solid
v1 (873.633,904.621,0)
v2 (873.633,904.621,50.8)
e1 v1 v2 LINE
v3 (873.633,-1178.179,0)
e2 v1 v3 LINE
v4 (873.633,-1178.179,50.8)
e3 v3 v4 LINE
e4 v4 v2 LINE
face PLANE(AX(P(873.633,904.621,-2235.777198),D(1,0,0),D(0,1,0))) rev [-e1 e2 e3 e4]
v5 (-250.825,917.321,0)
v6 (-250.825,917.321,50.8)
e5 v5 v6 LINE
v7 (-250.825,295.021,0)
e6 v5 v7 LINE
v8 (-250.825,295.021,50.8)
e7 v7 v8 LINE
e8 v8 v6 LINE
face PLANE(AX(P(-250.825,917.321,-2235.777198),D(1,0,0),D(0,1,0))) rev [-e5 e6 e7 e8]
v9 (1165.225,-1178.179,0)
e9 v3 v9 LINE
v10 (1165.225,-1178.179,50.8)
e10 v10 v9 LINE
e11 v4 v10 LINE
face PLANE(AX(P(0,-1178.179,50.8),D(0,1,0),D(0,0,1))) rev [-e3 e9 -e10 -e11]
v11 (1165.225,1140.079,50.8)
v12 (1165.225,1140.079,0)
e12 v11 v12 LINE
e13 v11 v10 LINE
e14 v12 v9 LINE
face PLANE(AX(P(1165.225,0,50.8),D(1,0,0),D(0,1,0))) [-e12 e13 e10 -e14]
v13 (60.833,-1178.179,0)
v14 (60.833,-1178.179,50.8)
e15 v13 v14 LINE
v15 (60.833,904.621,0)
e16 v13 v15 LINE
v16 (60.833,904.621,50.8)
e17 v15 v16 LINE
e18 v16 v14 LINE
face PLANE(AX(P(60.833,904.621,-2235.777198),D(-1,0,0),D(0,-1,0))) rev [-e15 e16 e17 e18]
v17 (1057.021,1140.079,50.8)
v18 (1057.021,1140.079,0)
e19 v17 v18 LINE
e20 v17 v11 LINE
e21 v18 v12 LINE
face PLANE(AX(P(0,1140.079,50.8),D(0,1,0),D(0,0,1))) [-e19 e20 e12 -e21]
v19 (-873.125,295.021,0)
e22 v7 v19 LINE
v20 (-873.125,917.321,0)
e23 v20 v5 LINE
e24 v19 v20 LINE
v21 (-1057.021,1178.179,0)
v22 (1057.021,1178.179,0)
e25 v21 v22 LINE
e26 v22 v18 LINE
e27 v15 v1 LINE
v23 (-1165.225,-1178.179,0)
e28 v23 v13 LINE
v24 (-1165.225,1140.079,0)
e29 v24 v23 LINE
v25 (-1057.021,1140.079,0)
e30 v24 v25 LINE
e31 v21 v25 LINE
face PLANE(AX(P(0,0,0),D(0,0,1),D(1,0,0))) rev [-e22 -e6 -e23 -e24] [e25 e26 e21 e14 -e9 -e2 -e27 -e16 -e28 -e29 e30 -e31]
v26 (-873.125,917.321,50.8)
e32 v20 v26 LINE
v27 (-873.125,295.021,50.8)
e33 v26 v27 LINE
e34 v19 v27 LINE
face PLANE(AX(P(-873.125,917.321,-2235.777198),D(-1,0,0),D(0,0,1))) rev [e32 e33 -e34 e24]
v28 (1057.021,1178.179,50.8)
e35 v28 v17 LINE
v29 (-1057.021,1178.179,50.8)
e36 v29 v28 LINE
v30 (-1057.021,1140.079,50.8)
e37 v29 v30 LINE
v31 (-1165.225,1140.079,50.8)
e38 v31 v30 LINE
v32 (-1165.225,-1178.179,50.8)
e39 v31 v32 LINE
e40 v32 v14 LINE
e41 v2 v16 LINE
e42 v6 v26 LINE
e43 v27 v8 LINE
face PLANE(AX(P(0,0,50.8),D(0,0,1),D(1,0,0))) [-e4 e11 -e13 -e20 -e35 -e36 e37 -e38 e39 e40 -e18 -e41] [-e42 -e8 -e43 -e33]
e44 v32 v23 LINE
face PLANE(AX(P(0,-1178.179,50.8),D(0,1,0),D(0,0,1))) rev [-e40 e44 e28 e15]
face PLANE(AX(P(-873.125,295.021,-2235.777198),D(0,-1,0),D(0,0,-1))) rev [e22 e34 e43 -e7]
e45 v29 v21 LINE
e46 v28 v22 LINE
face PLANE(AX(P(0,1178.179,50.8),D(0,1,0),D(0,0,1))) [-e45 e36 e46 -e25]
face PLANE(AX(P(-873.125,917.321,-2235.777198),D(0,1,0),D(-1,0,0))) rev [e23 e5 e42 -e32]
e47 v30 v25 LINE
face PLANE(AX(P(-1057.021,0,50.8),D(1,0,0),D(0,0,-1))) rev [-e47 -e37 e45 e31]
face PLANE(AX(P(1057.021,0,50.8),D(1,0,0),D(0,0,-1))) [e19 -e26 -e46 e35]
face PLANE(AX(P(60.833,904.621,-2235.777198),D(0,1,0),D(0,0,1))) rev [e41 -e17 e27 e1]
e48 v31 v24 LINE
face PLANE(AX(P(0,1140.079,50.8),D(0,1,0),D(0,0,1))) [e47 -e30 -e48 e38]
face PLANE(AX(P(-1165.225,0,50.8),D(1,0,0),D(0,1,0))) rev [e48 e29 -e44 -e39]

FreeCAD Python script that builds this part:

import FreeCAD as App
import Part
import Sketcher

V = App.Vector
Q = App.Units.Quantity


def add_polygon(sketch, points):
    """Adds a closed chain of lines whose ends are joined by coincident constraints."""
    first, n = sketch.GeometryCount, len(points)
    for a, b in zip(points, points[1:] + points[:1]):
        sketch.addGeometry(Part.LineSegment(App.Vector(*a, 0), App.Vector(*b, 0)), False)
    for i in range(n):
        sketch.addConstraint(Sketcher.Constraint("Coincident", first + i, 2, first + (i + 1) % n, 1))

doc = App.newDocument("Part")
params = doc.addObject("Spreadsheet::Sheet", "Params")
for row, (alias, value) in enumerate([
    ("sketch1_height", "1.5 in"),
    ("sketch1_width", "83.23 in"),
    ("sketch1_width2", "4.26 in"),
    ("sketch1_height2", "91.27 in"),
    ("pad1_length", "2 in"),
    ("sketch2_width", "32 in"),
    ("sketch2_height", "82 in"),
    ("sketch2_width2", "24.5 in"),
    ("pocket1_length", "2 in"),
], start=1):
    params.set(f"A{row}", alias)
    params.set(f"B{row}", "=" + value)
    params.setAlias(f"B{row}", alias)

body = doc.addObject("PartDesign::Body", "Body")

sketch1 = doc.addObject("Sketcher::SketchObject", "Sketch")
body.addObject(sketch1)
sketch1.AttachmentSupport = (doc.XY_Plane, [""])
sketch1.MapMode = "FlatFace"
add_polygon(sketch1, [(1057.021, 1178.179), (-1057.021, 1178.179), (-1057.021, 1140.079), (-1165.225, 1140.079), (-1165.225, -1178.179), (1165.225, -1178.179), (1165.225, 1140.079), (1057.021, 1140.079)])
sketch1.addConstraint(Sketcher.Constraint("Horizontal", 0))
sketch1.addConstraint(Sketcher.Constraint("Vertical", 1))
sketch1.addConstraint(Sketcher.Constraint("Horizontal", 2))
sketch1.addConstraint(Sketcher.Constraint("Vertical", 3))
sketch1.addConstraint(Sketcher.Constraint("Horizontal", 4))
sketch1.addConstraint(Sketcher.Constraint("Vertical", 5))
sketch1.addConstraint(Sketcher.Constraint("Horizontal", 6))
sketch1.addConstraint(Sketcher.Constraint("Vertical", 7))
sketch1.addConstraint(Sketcher.Constraint("Symmetric", 2, 2, 5, 2, -2))
sketch1.addConstraint(Sketcher.Constraint("Equal", 2, 6))
sketch1.addConstraint(Sketcher.Constraint("DistanceY", 1, 2, 1, 1, Q("1.5 in")))
sketch1.addConstraint(Sketcher.Constraint("DistanceX", 0, 2, 0, 1, Q("83.23 in")))
sketch1.addConstraint(Sketcher.Constraint("DistanceX", 2, 2, 2, 1, Q("4.26 in")))
sketch1.addConstraint(Sketcher.Constraint("DistanceY", 3, 2, 3, 1, Q("91.27 in")))
sketch1.addConstraint(Sketcher.Constraint("DistanceY", -1, 1, 0, 2, Q("46.385 in")))
sketch1.setExpression("Constraints[18]", "Params.sketch1_height")
sketch1.setExpression("Constraints[19]", "Params.sketch1_width")
sketch1.setExpression("Constraints[20]", "Params.sketch1_width2")
sketch1.setExpression("Constraints[21]", "Params.sketch1_height2")
pad1 = doc.addObject("PartDesign::Pad", "Pad")
body.addObject(pad1)
pad1.Profile = sketch1
pad1.setExpression("Length", "Params.pad1_length")

sketch2 = doc.addObject("Sketcher::SketchObject", "Sketch001")
body.addObject(sketch2)
sketch2.AttachmentSupport = (doc.XY_Plane, [""])
sketch2.MapMode = "FlatFace"
sketch2.AttachmentOffset = App.Placement(V(0, 0, 2 * 25.4), App.Rotation())
add_polygon(sketch2, [(-873.125, 917.321), (-873.125, 295.021), (-250.825, 295.021), (-250.825, 917.321)])
add_polygon(sketch2, [(60.833, 904.621), (60.833, -1178.179), (873.633, -1178.179), (873.633, 904.621)])
sketch2.addConstraint(Sketcher.Constraint("Vertical", 0))
sketch2.addConstraint(Sketcher.Constraint("Horizontal", 1))
sketch2.addConstraint(Sketcher.Constraint("Vertical", 2))
sketch2.addConstraint(Sketcher.Constraint("Horizontal", 3))
sketch2.addConstraint(Sketcher.Constraint("Vertical", 4))
sketch2.addConstraint(Sketcher.Constraint("Horizontal", 5))
sketch2.addConstraint(Sketcher.Constraint("Vertical", 6))
sketch2.addConstraint(Sketcher.Constraint("Horizontal", 7))
sketch2.addConstraint(Sketcher.Constraint("Equal", 3, 0))
sketch2.addConstraint(Sketcher.Constraint("DistanceX", 5, 1, 5, 2, Q("32 in")))
sketch2.addConstraint(Sketcher.Constraint("DistanceY", 4, 2, 4, 1, Q("82 in")))
sketch2.addConstraint(Sketcher.Constraint("DistanceX", 1, 1, 1, 2, Q("24.5 in")))
sketch2.addConstraint(Sketcher.Constraint("DistanceY", 4, 2, 1, 2, Q("58 in")))
sketch2.addConstraint(Sketcher.Constraint("DistanceX", 1, 2, 4, 2, Q("12.27 in")))
sketch2.addConstraint(Sketcher.Constraint("DistanceX", 0, 2, -1, 1, Q("34.375 in")))
sketch2.addConstraint(Sketcher.Constraint("DistanceY", -1, 1, 0, 2, Q("11.615 in")))
sketch2.setExpression("Constraints[17]", "Params.sketch2_width")
sketch2.setExpression("Constraints[18]", "Params.sketch2_height")
sketch2.setExpression("Constraints[19]", "Params.sketch2_width2")
pocket1 = doc.addObject("PartDesign::Pocket", "Pocket")
body.addObject(pocket1)
pocket1.Profile = sketch2
pocket1.setExpression("Length", "Params.pocket1_length")

doc.recompute()
